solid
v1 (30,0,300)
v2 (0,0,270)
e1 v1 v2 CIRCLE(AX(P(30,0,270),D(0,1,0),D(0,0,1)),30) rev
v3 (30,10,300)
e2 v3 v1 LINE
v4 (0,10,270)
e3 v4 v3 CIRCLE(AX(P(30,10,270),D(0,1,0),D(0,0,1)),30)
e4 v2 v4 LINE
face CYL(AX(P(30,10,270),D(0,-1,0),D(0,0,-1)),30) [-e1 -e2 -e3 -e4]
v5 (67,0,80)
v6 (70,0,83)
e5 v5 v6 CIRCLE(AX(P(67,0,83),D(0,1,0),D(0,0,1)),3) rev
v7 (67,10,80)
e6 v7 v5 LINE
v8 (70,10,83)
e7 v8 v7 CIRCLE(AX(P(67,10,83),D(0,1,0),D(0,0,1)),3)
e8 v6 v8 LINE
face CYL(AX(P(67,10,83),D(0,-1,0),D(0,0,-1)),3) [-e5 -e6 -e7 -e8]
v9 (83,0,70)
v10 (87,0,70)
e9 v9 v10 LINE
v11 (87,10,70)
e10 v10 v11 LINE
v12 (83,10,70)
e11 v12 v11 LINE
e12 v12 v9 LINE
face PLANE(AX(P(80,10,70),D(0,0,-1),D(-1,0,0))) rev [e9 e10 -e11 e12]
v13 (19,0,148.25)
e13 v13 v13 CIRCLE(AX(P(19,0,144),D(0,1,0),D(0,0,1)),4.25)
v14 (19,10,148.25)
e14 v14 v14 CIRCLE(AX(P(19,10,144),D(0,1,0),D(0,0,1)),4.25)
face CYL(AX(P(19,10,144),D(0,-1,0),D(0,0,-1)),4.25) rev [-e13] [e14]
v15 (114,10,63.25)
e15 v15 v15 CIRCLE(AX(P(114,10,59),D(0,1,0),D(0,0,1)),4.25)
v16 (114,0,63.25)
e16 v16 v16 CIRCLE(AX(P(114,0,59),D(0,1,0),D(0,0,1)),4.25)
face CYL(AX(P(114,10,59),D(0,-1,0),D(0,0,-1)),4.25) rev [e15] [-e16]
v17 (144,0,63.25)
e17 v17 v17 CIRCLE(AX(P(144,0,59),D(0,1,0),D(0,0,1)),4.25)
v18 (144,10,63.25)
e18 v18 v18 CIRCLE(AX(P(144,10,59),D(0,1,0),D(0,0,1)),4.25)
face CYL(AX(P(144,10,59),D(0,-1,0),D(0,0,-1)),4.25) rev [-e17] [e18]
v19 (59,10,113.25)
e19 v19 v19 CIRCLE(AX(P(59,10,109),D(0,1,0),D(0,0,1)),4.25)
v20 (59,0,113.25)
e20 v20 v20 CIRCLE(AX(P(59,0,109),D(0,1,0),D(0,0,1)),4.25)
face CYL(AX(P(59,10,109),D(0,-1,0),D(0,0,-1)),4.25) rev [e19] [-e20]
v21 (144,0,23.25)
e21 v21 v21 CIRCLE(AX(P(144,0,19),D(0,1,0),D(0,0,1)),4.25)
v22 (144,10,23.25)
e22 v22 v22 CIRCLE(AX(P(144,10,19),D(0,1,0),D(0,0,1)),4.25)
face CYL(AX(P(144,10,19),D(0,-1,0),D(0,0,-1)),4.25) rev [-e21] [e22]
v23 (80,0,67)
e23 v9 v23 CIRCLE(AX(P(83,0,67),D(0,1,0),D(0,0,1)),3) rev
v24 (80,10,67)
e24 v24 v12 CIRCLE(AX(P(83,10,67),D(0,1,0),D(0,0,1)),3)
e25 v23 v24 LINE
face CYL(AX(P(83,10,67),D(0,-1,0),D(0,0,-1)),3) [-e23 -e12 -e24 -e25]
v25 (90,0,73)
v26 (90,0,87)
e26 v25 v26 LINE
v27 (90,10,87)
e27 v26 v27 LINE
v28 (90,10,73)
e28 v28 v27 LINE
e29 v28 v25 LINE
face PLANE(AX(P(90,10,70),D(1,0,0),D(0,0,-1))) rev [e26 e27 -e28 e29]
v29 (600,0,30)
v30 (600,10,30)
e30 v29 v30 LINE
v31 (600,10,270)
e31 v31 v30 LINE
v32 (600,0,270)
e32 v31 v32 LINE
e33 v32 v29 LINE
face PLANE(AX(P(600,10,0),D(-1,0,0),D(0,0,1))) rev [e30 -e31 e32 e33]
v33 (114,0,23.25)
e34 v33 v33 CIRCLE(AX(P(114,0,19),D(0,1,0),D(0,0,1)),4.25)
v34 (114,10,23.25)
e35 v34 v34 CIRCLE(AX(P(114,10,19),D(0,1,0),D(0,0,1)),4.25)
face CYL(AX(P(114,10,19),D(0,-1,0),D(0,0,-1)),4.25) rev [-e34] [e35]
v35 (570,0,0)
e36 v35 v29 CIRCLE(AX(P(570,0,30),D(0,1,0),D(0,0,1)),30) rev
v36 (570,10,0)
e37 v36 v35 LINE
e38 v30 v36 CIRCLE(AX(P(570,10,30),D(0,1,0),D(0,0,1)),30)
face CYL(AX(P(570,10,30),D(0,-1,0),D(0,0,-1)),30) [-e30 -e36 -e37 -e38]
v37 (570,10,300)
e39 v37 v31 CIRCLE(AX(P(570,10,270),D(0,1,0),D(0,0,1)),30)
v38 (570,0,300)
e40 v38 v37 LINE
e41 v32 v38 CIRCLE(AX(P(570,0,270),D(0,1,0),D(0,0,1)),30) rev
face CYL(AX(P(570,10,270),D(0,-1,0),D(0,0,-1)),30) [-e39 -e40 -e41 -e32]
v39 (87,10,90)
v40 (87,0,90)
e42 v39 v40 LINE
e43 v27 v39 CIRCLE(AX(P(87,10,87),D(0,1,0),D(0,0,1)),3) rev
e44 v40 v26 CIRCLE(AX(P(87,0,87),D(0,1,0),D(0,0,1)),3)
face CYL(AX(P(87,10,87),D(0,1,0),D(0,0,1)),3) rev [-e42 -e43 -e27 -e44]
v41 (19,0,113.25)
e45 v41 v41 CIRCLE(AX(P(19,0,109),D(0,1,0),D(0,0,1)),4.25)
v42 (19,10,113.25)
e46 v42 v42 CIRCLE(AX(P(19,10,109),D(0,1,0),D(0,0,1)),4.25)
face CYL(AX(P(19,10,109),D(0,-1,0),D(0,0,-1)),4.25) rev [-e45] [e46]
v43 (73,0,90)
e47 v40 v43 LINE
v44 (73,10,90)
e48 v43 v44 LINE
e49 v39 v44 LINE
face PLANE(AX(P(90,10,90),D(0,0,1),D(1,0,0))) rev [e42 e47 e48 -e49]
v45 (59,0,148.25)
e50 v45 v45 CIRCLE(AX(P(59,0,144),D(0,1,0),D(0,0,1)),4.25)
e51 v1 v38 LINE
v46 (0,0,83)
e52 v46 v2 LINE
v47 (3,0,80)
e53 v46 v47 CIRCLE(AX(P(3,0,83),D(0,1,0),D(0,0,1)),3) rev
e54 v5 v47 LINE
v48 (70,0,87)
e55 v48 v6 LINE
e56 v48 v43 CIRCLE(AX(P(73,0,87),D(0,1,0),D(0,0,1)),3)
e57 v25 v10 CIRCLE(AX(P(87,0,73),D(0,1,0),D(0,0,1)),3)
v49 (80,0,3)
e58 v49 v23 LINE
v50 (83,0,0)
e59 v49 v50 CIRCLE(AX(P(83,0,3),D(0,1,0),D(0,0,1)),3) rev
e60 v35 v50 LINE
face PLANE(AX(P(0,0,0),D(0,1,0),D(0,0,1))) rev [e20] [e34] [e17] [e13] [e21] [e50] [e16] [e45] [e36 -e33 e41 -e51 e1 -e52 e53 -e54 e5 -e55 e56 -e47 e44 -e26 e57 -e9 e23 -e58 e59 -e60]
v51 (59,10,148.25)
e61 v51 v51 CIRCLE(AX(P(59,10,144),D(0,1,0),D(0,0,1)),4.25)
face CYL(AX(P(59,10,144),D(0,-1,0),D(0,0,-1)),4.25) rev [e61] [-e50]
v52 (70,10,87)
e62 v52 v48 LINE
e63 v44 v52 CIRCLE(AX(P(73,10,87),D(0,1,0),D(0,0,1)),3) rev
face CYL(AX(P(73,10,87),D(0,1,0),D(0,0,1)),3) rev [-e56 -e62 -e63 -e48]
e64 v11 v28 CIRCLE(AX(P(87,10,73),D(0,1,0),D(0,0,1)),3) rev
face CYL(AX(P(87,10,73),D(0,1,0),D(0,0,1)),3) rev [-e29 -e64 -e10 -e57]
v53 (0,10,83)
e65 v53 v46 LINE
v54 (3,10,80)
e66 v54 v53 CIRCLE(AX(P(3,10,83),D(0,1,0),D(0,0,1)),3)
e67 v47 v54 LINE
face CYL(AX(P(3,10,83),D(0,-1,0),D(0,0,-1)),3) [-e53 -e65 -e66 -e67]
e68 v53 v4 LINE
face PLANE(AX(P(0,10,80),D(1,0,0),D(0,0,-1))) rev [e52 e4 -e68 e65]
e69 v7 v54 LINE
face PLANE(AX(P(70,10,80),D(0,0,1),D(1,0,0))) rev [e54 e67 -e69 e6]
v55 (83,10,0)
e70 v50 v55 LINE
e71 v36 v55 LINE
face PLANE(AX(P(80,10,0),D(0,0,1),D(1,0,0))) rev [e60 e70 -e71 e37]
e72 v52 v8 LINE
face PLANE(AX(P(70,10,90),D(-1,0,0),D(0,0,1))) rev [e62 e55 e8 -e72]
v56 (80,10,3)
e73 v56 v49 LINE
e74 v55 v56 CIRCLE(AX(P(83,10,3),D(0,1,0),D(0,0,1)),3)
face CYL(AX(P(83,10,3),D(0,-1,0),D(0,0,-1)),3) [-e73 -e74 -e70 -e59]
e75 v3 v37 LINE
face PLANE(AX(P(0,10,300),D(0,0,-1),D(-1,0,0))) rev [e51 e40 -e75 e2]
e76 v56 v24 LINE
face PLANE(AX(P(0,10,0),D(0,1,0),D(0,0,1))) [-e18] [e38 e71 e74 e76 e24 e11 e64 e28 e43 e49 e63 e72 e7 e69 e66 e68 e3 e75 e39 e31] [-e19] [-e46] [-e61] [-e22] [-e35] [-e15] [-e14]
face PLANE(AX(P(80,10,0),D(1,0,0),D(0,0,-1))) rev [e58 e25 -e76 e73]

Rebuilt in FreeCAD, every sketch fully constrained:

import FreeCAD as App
import Part
import Sketcher

V = App.Vector


def edges_at(feature, points):
    """Names of the edges that pass closest to the given points."""
    edges = feature.Shape.Edges
    near = lambda p: min(range(len(edges)), key=lambda i: edges[i].distToShape(Part.Vertex(*p))[0])
    return sorted({f"Edge{near(p) + 1}" for p in points})

doc = App.newDocument("Part")
params = doc.addObject("Spreadsheet::Sheet", "Params")
for row, (alias, value) in enumerate([
    ("sketch1_diameter", "8.5 mm"),
    ("sketch1_width", "10 mm"),
    ("sketch1_width2", "20 mm"),
    ("sketch1_width3", "70 mm"),
    ("sketch1_width4", "600 mm"),
    ("pad1_length", "10 mm"),
    ("fillet_radius", "30 mm"),
    ("fillet2_radius", "3 mm"),
], start=1):
    params.set(f"A{row}", alias)
    params.set(f"B{row}", "=" + value)
    params.setAlias(f"B{row}", alias)

body = doc.addObject("PartDesign::Body", "Body")

# Sketch on XZ plane
sketch1 = body.newObject("Sketcher::SketchObject", "Sketch")
sketch1.AttachmentSupport = (doc.getObject("XZ_Plane"), [""])
sketch1.MapMode = "FlatFace"
sketch1.addGeometry([
    Part.LineSegment(V(80, 0, 0), V(80, 70, 0)),  # 0
    Part.LineSegment(V(80, 70, 0), V(90, 70, 0)),  # 1
    Part.LineSegment(V(90, 70, 0), V(90, 90, 0)),  # 2
    Part.LineSegment(V(90, 90, 0), V(70, 90, 0)),  # 3
    Part.LineSegment(V(70, 90, 0), V(70, 80, 0)),  # 4
    Part.LineSegment(V(70, 80, 0), V(0, 80, 0)),  # 5
    Part.LineSegment(V(0, 80, 0), V(0, 300, 0)),  # 6
    Part.LineSegment(V(0, 300, 0), V(600, 300, 0)),  # 7
    Part.LineSegment(V(600, 300, 0), V(600, 0, 0)),  # 8
    Part.LineSegment(V(600, 0, 0), V(80, 0, 0)),  # 9
    Part.Circle(V(19, 144, 0), V(0, 0, 1), 4.2),  # 10
    Part.Circle(V(59, 144, 0), V(0, 0, 1), 4.2),  # 11
    Part.Circle(V(19, 109, 0), V(0, 0, 1), 4.2),  # 12
    Part.Circle(V(59, 109, 0), V(0, 0, 1), 4.2),  # 13
    Part.Circle(V(114, 59, 0), V(0, 0, 1), 4.2),  # 14
    Part.Circle(V(144, 59, 0), V(0, 0, 1), 4.2),  # 15
    Part.Circle(V(114, 19, 0), V(0, 0, 1), 4.2),  # 16
    Part.Circle(V(144, 19, 0), V(0, 0, 1), 4.2),  # 17
], False)
sketch1.addConstraint([
    Sketcher.Constraint("Coincident", 0, 2, 1, 1),
    Sketcher.Constraint("Coincident", 1, 2, 2, 1),
    Sketcher.Constraint("Coincident", 2, 2, 3, 1),
    Sketcher.Constraint("Coincident", 3, 2, 4, 1),
    Sketcher.Constraint("Coincident", 4, 2, 5, 1),
    Sketcher.Constraint("Coincident", 5, 2, 6, 1),
    Sketcher.Constraint("Coincident", 6, 2, 7, 1),
    Sketcher.Constraint("Coincident", 7, 2, 8, 1),
    Sketcher.Constraint("Coincident", 8, 2, 9, 1),
    Sketcher.Constraint("Coincident", 9, 2, 0, 1),
    Sketcher.Constraint("Vertical", 0),
    Sketcher.Constraint("Horizontal", 1),
    Sketcher.Constraint("Vertical", 2),
    Sketcher.Constraint("Horizontal", 3),
    Sketcher.Constraint("Vertical", 4),
    Sketcher.Constraint("Horizontal", 5),
    Sketcher.Constraint("Vertical", 6),
    Sketcher.Constraint("Horizontal", 7),
    Sketcher.Constraint("Vertical", 8),
    Sketcher.Constraint("Horizontal", 9),
    Sketcher.Constraint("Equal", 10, 11),
    Sketcher.Constraint("Equal", 11, 12),
    Sketcher.Constraint("Equal", 12, 13),
    Sketcher.Constraint("Equal", 13, 14),
    Sketcher.Constraint("Equal", 14, 15),
    Sketcher.Constraint("Equal", 15, 16),
    Sketcher.Constraint("Equal", 16, 17),
    Sketcher.Constraint("PointOnObject", 5, 2, -2),
    Sketcher.Constraint("PointOnObject", 8, 2, -1),
    Sketcher.Constraint("Horizontal", 10, 3, 11, 3),
    Sketcher.Constraint("Horizontal", 12, 3, 13, 3),
    Sketcher.Constraint("Horizontal", 14, 3, 15, 3),
    Sketcher.Constraint("Horizontal", 16, 3, 17, 3),
    Sketcher.Constraint("Vertical", 10, 3, 12, 3),
    Sketcher.Constraint("Vertical", 11, 3, 13, 3),
    Sketcher.Constraint("Vertical", 14, 3, 16, 3),
    Sketcher.Constraint("Vertical", 15, 3, 17, 3),
    Sketcher.Constraint("Equal", 5, 0),
    Sketcher.Constraint("Equal", 3, 2),
    Sketcher.Constraint("Equal", 1, 4),
    Sketcher.Constraint("Diameter", 10, 8.5),
    Sketcher.Constraint("DistanceX", 1, 1, 1, 2, 10.0),
    Sketcher.Constraint("DistanceX", 3, 2, 3, 1, 20.0),
    Sketcher.Constraint("DistanceX", 5, 2, 5, 1, 70.0),
    Sketcher.Constraint("DistanceX", 7, 1, 7, 2, 600.0),
    Sketcher.Constraint("DistanceY", 6, 1, 6, 2, 220.0),
    Sketcher.Constraint("DistanceX", -1, 1, 10, 3, 19.0),
    Sketcher.Constraint("DistanceY", -1, 1, 10, 3, 144.0),
    Sketcher.Constraint("DistanceX", -1, 1, 11, 3, 59.0),
    Sketcher.Constraint("DistanceY", -1, 1, 12, 3, 109.0),
    Sketcher.Constraint("DistanceX", -1, 1, 14, 3, 114.0),
    Sketcher.Constraint("DistanceY", -1, 1, 14, 3, 59.0),
    Sketcher.Constraint("DistanceX", -1, 1, 15, 3, 144.0),
    Sketcher.Constraint("DistanceY", -1, 1, 16, 3, 19.0),
])
sketch1.setExpression("Constraints[40]", "Params.sketch1_diameter")
sketch1.setExpression("Constraints[41]", "Params.sketch1_width")
sketch1.setExpression("Constraints[42]", "Params.sketch1_width2")
sketch1.setExpression("Constraints[43]", "Params.sketch1_width3")
sketch1.setExpression("Constraints[44]", "Params.sketch1_width4")
pad1 = body.newObject("PartDesign::Pad", "Pad")
pad1.Profile = sketch1
pad1.setExpression("Length", "Params.pad1_length")
pad1.Reversed = True
doc.recompute()

fillet = body.newObject("PartDesign::Fillet", "Fillet")
fillet.Base = (pad1, edges_at(pad1, [(600, 5, 300), (0, 5, 300), (600, 5, 0)]))
fillet.setExpression("Radius", "Params.fillet_radius")
doc.recompute()

fillet2 = body.newObject("PartDesign::Fillet", "Fillet001")
fillet2.Base = (fillet, edges_at(fillet, [
    (0, 5, 80),
    (70, 5, 80),
    (70, 5, 90),
    (90, 5, 90),
    (90, 5, 70),
    (80, 5, 70),
    (80, 5, 0),
]))
fillet2.setExpression("Radius", "Params.fillet2_radius")

doc.recompute()
